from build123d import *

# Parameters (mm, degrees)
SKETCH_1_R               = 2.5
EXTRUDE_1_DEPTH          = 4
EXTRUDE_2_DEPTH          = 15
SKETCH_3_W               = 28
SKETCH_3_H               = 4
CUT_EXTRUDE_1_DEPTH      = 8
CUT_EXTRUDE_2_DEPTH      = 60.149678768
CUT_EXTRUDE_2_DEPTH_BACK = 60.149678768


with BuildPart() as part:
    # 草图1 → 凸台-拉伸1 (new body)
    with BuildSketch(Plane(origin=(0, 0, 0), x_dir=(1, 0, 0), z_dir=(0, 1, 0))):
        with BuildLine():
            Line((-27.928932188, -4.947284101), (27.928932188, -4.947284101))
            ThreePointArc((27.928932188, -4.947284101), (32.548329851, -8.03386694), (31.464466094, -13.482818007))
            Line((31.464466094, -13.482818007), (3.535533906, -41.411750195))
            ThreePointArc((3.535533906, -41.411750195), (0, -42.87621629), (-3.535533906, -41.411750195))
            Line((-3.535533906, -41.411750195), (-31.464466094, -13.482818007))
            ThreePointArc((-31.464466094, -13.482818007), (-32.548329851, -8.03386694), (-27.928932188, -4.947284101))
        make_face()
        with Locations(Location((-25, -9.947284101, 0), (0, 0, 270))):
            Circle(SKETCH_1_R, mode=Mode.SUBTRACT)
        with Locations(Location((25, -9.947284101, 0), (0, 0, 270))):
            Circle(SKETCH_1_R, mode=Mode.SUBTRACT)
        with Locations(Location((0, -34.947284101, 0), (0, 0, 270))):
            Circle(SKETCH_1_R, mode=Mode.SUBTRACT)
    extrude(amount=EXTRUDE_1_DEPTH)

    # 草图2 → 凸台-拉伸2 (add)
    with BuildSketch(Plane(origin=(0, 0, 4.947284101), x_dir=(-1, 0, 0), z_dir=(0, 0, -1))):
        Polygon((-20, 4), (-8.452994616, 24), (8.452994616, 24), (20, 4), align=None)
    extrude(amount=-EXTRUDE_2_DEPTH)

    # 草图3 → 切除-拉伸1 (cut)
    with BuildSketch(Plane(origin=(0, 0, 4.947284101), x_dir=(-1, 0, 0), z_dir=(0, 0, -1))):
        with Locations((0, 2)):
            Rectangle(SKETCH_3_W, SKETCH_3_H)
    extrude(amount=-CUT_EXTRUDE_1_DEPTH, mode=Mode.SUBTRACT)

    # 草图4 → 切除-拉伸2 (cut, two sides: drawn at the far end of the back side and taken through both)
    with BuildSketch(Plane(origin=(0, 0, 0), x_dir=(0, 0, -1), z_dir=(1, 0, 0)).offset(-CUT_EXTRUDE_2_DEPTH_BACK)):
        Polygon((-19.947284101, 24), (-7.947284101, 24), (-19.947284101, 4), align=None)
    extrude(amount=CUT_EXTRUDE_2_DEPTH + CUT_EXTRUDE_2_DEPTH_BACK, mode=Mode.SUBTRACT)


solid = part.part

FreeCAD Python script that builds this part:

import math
import FreeCAD as App
import Part
import Sketcher
Q = App.Units.Quantity


def add_polygon(sketch, points):
    """Adds a closed chain of lines whose ends are joined by coincident constraints."""
    first, n = sketch.GeometryCount, len(points)
    for a, b in zip(points, points[1:] + points[:1]):
        sketch.addGeometry(Part.LineSegment(App.Vector(*a, 0), App.Vector(*b, 0)), False)
    for i in range(n):
        sketch.addConstraint(Sketcher.Constraint("Coincident", first + i, 2, first + (i + 1) % n, 1))

doc = App.newDocument("Part")
body = doc.addObject("PartDesign::Body", "Body")

sketch1 = body.newObject("Sketcher::SketchObject", "Sketch")
sketch1.AttachmentSupport = (doc.getObject("XZ_Plane"), [""])
sketch1.MapMode = "FlatFace"
sketch1.addGeometry(Part.LineSegment(App.Vector(27.9, 4.9, 0), App.Vector(-27.9, 4.9, 0)), False)
sketch1.addGeometry(Part.ArcOfCircle(Part.Circle(App.Vector(-27.9, 9.9, 0), App.Vector(0, 0, 1), 5), math.radians(135), math.radians(270)), False)
sketch1.addGeometry(Part.LineSegment(App.Vector(-31.5, 13.5, 0), App.Vector(-3.5, 41.4, 0)), False)
sketch1.addGeometry(Part.ArcOfCircle(Part.Circle(App.Vector(0, 37.9, 0), App.Vector(0, 0, 1), 5), math.radians(45), math.radians(135)), False)
sketch1.addGeometry(Part.LineSegment(App.Vector(3.5, 41.4, 0), App.Vector(31.5, 13.5, 0)), False)
sketch1.addGeometry(Part.ArcOfCircle(Part.Circle(App.Vector(27.9, 9.9, 0), App.Vector(0, 0, 1), 5), math.radians(-90), math.radians(45)), False)
sketch1.addGeometry(Part.Circle(App.Vector(0, 34.9, 0), App.Vector(0, 0, 1), 2.5), False)
sketch1.addGeometry(Part.Circle(App.Vector(25, 9.9, 0), App.Vector(0, 0, 1), 2.5), False)
sketch1.addGeometry(Part.Circle(App.Vector(-25, 9.9, 0), App.Vector(0, 0, 1), 2.5), False)
sketch1.addConstraint(Sketcher.Constraint("Tangent", 0, 2, 1, 2))
sketch1.addConstraint(Sketcher.Constraint("Tangent", 1, 1, 2, 1))
sketch1.addConstraint(Sketcher.Constraint("Tangent", 2, 2, 3, 2))
sketch1.addConstraint(Sketcher.Constraint("Tangent", 3, 1, 4, 1))
sketch1.addConstraint(Sketcher.Constraint("Tangent", 4, 2, 5, 2))
sketch1.addConstraint(Sketcher.Constraint("Tangent", 5, 1, 0, 1))
sketch1.addConstraint(Sketcher.Constraint("Horizontal", 0))
sketch1.addConstraint(Sketcher.Constraint("Equal", 1, 3))
sketch1.addConstraint(Sketcher.Constraint("Equal", 3, 5))
sketch1.addConstraint(Sketcher.Constraint("Equal", 6, 7))
sketch1.addConstraint(Sketcher.Constraint("Equal", 7, 8))
sketch1.addConstraint(Sketcher.Constraint("Symmetric", 7, 3, 8, 3, -2))
sketch1.addConstraint(Sketcher.Constraint("Symmetric", 2, 2, 3, 1, -2))
sketch1.addConstraint(Sketcher.Constraint("PointOnObject", 6, 3, -2))
sketch1.addConstraint(Sketcher.Constraint("Perpendicular", 2, 4))
sketch1.addConstraint(Sketcher.Constraint("Horizontal", 5, 3, 7, 3))
sketch1.addConstraint(Sketcher.Constraint("Diameter", 6, Q("5 mm")))
sketch1.addConstraint(Sketcher.Constraint("Radius", 1, Q("5 mm")))
sketch1.addConstraint(Sketcher.Constraint("DistanceX", -1, 1, 7, 3, Q("25 mm")))
sketch1.addConstraint(Sketcher.Constraint("DistanceY", 1, 3, 6, 3, Q("25 mm")))
sketch1.addConstraint(Sketcher.Constraint("DistanceY", 1, 1, 3, 3, Q("24.393398 mm")))
sketch1.addConstraint(Sketcher.Constraint("DistanceY", -1, 1, 1, 1, Q("13.482818 mm")))
pad1 = body.newObject("PartDesign::Pad", "Pad")
pad1.Profile = sketch1
pad1.Length = 4
pad1.Reversed = True

sketch2 = body.newObject("Sketcher::SketchObject", "Sketch001")
sketch2.AttachmentSupport = (doc.getObject("XY_Plane"), [""])
sketch2.MapMode = "FlatFace"
sketch2.AttachmentOffset = App.Placement(App.Vector(0, 0, 4.947284), App.Rotation())
add_polygon(sketch2, [(8, 24), (20, 4), (-20, 4), (-8, 24)])
sketch2.addConstraint(Sketcher.Constraint("Horizontal", 1))
sketch2.addConstraint(Sketcher.Constraint("Horizontal", 3))
sketch2.addConstraint(Sketcher.Constraint("Equal", 0, 2))
sketch2.addConstraint(Sketcher.Constraint("DistanceX", 1, 2, 1, 1, Q("40 mm")))
sketch2.addConstraint(Sketcher.Constraint("Angle", 0, Q("-60 deg")))
sketch2.addConstraint(Sketcher.Constraint("DistanceX", -1, 1, 0, 2, Q("20 mm")))
sketch2.addConstraint(Sketcher.Constraint("DistanceY", -1, 1, 0, 2, Q("4 mm")))
sketch2.addConstraint(Sketcher.Constraint("DistanceY", -1, 1, 2, 2, Q("24 mm")))
pad2 = body.newObject("PartDesign::Pad", "Pad001")
pad2.Profile = sketch2
pad2.Length = 15

sketch3 = body.newObject("Sketcher::SketchObject", "Sketch002")
sketch3.AttachmentSupport = (doc.getObject("XY_Plane"), [""])
sketch3.MapMode = "FlatFace"
sketch3.AttachmentOffset = App.Placement(App.Vector(0, 0, 4.947284), App.Rotation())
add_polygon(sketch3, [(14, 4), (14, 0), (-14, 0), (-14, 4)])
sketch3.addConstraint(Sketcher.Constraint("Vertical", 0))
sketch3.addConstraint(Sketcher.Constraint("Horizontal", 1))
sketch3.addConstraint(Sketcher.Constraint("Vertical", 2))
sketch3.addConstraint(Sketcher.Constraint("Horizontal", 3))
sketch3.addConstraint(Sketcher.Constraint("Symmetric", 0, 2, 1, 2, -1, 1))
sketch3.addConstraint(Sketcher.Constraint("DistanceX", 1, 2, 1, 1, Q("28 mm")))
sketch3.addConstraint(Sketcher.Constraint("DistanceY", 0, 2, 0, 1, Q("4 mm")))
pocket1 = body.newObject("PartDesign::Pocket", "Pocket")
pocket1.Profile = sketch3
pocket1.Length = 8
pocket1.Reversed = True

sketch4 = body.newObject("Sketcher::SketchObject", "Sketch003")
sketch4.AttachmentSupport = (doc.getObject("YZ_Plane"), [""])
sketch4.MapMode = "FlatFace"
add_polygon(sketch4, [(24, 8), (24, 20), (4, 20)])
sketch4.addConstraint(Sketcher.Constraint("Vertical", 0))
sketch4.addConstraint(Sketcher.Constraint("Horizontal", 1))
sketch4.addConstraint(Sketcher.Constraint("DistanceX", 1, 2, 1, 1, Q("20 mm")))
sketch4.addConstraint(Sketcher.Constraint("DistanceY", 0, 1, 0, 2, Q("12 mm")))
sketch4.addConstraint(Sketcher.Constraint("DistanceX", -1, 1, 0, 2, Q("24 mm")))
sketch4.addConstraint(Sketcher.Constraint("DistanceY", -1, 1, 0, 2, Q("19.947284 mm")))
pocket2 = body.newObject("PartDesign::Pocket", "Pocket001")
pocket2.Profile = sketch4
pocket2.Type = "ThroughAll"
pocket2.Midplane = True

doc.recompute()
